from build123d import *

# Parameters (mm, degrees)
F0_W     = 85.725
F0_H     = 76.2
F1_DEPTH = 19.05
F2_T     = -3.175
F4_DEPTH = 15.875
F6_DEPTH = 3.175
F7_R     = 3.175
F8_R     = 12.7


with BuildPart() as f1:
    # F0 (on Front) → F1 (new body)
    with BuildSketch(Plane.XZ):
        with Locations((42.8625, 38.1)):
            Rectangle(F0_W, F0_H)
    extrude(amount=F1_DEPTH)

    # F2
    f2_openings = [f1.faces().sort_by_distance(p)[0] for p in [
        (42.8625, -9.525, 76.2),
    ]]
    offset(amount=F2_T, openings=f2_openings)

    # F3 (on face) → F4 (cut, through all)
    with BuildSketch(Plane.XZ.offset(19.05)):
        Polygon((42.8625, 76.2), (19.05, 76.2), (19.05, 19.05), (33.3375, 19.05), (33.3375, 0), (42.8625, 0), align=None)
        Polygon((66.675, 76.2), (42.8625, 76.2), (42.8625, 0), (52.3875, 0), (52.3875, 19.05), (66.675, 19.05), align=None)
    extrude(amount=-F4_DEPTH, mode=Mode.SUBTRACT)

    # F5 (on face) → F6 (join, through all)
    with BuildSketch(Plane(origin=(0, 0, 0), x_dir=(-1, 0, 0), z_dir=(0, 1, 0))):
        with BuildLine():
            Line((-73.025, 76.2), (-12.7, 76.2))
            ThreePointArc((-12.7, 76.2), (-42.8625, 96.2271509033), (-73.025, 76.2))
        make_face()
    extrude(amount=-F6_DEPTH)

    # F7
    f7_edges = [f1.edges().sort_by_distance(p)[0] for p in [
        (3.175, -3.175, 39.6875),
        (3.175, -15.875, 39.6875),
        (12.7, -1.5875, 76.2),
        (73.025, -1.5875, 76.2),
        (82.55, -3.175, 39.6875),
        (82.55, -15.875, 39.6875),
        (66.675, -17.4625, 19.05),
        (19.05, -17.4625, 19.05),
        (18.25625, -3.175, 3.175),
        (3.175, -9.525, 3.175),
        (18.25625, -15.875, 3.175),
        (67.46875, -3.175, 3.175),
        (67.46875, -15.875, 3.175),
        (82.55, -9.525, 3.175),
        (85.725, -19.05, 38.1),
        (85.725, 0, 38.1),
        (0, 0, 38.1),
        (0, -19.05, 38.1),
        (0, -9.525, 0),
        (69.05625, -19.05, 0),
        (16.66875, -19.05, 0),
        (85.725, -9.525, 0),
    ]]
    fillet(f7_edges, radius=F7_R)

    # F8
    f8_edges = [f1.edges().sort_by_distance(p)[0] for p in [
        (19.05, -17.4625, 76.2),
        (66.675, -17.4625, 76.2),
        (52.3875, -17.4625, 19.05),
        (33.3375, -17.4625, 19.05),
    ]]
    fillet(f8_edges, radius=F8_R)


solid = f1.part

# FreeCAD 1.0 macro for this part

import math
import FreeCAD as App
import Part
import Sketcher
from FreeCAD import Vector
Q = App.Units.Quantity


def edges_at(feature, points):
    """Names of the edges that pass closest to the given points."""
    edges = feature.Shape.Edges
    near = lambda p: min(range(len(edges)), key=lambda i: edges[i].distToShape(Part.Vertex(*p))[0])
    return sorted({f"Edge{near(p) + 1}" for p in points})


def faces_at(feature, points):
    """Names of the faces that lie closest to the given points."""
    faces = feature.Shape.Faces
    near = lambda p: min(range(len(faces)), key=lambda i: faces[i].distToShape(Part.Vertex(*p))[0])
    return sorted({f"Face{near(p) + 1}" for p in points})


def add_polygon(sketch, points):
    """Adds a closed chain of lines whose ends are joined by coincident constraints."""
    first, n = sketch.GeometryCount, len(points)
    for a, b in zip(points, points[1:] + points[:1]):
        sketch.addGeometry(Part.LineSegment(App.Vector(*a, 0), App.Vector(*b, 0)), False)
    for i in range(n):
        sketch.addConstraint(Sketcher.Constraint("Coincident", first + i, 2, first + (i + 1) % n, 1))

doc = App.newDocument("Part")
params = doc.addObject("Spreadsheet::Sheet", "Params")
for row, (alias, value) in enumerate([
    ("sketch1_height", "3 in"),
    ("sketch1_width", "3.375 in"),
    ("pad1_length", "0.75 in"),
    ("thickness_wall", "0.125 in"),
    ("sketch2_width", "0.75 in"),
    ("sketch2_width2", "0.5625 in"),
    ("pocket1_length", "0.625 in"),
    ("sketch3_width", "2.375 in"),
    ("pad2_length", "0.125 in"),
    ("fillet_radius", "0.125 in"),
    ("fillet2_radius", "0.5 in"),
], start=1):
    params.set(f"A{row}", alias)
    params.set(f"B{row}", "=" + value)
    params.setAlias(f"B{row}", alias)

body = doc.addObject("PartDesign::Body", "Body")

# Sketch on XZ plane
sketch1 = body.newObject("Sketcher::SketchObject", "Sketch")
sketch1.AttachmentSupport = (doc.getObject("XZ_Plane"), [""])
sketch1.MapMode = "FlatFace"
add_polygon(sketch1, [(0, 76), (0, 0), (86, 0), (86, 76)])  # lines 0-3
sketch1.addConstraint(Sketcher.Constraint("Vertical", 0))
sketch1.addConstraint(Sketcher.Constraint("Horizontal", 1))
sketch1.addConstraint(Sketcher.Constraint("Vertical", 2))
sketch1.addConstraint(Sketcher.Constraint("Horizontal", 3))
sketch1.addConstraint(Sketcher.Constraint("Coincident", 0, 2, -1, 1))
sketch1.addConstraint(Sketcher.Constraint("DistanceY", 0, 2, 0, 1, Q("3 in")))
sketch1.addConstraint(Sketcher.Constraint("DistanceX", 1, 1, 1, 2, Q("3.375 in")))
sketch1.setExpression("Constraints[9]", "Params.sketch1_height")
sketch1.setExpression("Constraints[10]", "Params.sketch1_width")
pad1 = body.newObject("PartDesign::Pad", "Pad")
pad1.Profile = sketch1
pad1.setExpression("Length", "Params.pad1_length")
doc.recompute()

thickness = body.newObject("PartDesign::Thickness", "Thickness")
thickness.Base = (pad1, faces_at(pad1, [(42.862, -9.525, 76.2)]))
thickness.setExpression("Value", "Params.thickness_wall")
thickness.Reversed = True
thickness.Join = "Arc"

# Sketch on XZ plane
sketch2 = body.newObject("Sketcher::SketchObject", "Sketch001")
sketch2.AttachmentSupport = (doc.getObject("XZ_Plane"), [""])
sketch2.MapMode = "FlatFace"
sketch2.AttachmentOffset = App.Placement(Vector(0, 0, 0.75 * 25.4), App.Rotation())
add_polygon(sketch2, [(19, 76), (19, 19), (33, 19), (33, 0), (52, 0), (52, 19), (67, 19), (67, 76)])  # lines 0-7
sketch2.addConstraint(Sketcher.Constraint("Vertical", 0))
sketch2.addConstraint(Sketcher.Constraint("Horizontal", 1))
sketch2.addConstraint(Sketcher.Constraint("Vertical", 2))
sketch2.addConstraint(Sketcher.Constraint("Horizontal", 3))
sketch2.addConstraint(Sketcher.Constraint("Vertical", 4))
sketch2.addConstraint(Sketcher.Constraint("Horizontal", 5))
sketch2.addConstraint(Sketcher.Constraint("Vertical", 6))
sketch2.addConstraint(Sketcher.Constraint("Horizontal", 7))
sketch2.addConstraint(Sketcher.Constraint("PointOnObject", 2, 2, -1))
sketch2.addConstraint(Sketcher.Constraint("Horizontal", 1, 2, 4, 2))
sketch2.addConstraint(Sketcher.Constraint("Equal", 1, 5))
sketch2.addConstraint(Sketcher.Constraint("Equal", 3, 2))
sketch2.addConstraint(Sketcher.Constraint("DistanceY", -1, 1, 6, 2, Q("3 in")))
sketch2.addConstraint(Sketcher.Constraint("DistanceX", 3, 1, 3, 2, Q("0.75 in")))
sketch2.addConstraint(Sketcher.Constraint("DistanceX", 1, 1, 1, 2, Q("0.5625 in")))
sketch2.addConstraint(Sketcher.Constraint("DistanceX", -1, 1, 0, 2, Q("0.75 in")))
sketch2.setExpression("Constraints[21]", "Params.sketch2_width")
sketch2.setExpression("Constraints[22]", "Params.sketch2_width2")
pocket1 = body.newObject("PartDesign::Pocket", "Pocket")
pocket1.Profile = sketch2
pocket1.setExpression("Length", "Params.pocket1_length")

# Sketch on XZ plane
sketch3 = body.newObject("Sketcher::SketchObject", "Sketch002")
sketch3.AttachmentSupport = (doc.getObject("XZ_Plane"), [""])
sketch3.MapMode = "FlatFace"
sketch3.addGeometry(Part.LineSegment(Vector(73, 76, 0), Vector(13, 76, 0)), False)
sketch3.addGeometry(Part.ArcOfCircle(Part.Circle(Vector(43, 64, 0), Vector(0, 0, 1), 33), math.radians(23), math.radians(157)), False)
sketch3.addConstraint(Sketcher.Constraint("Coincident", 0, 1, 1, 1))
sketch3.addConstraint(Sketcher.Constraint("Coincident", 1, 2, 0, 2))
sketch3.addConstraint(Sketcher.Constraint("Horizontal", 0))
sketch3.addConstraint(Sketcher.Constraint("DistanceY", -1, 1, 0, 1, Q("3 in")))
sketch3.addConstraint(Sketcher.Constraint("DistanceY", -1, 1, 1, 3, Q("2.5 in")))
sketch3.addConstraint(Sketcher.Constraint("DistanceX", -1, 1, 1, 2, Q("0.5 in")))
sketch3.addConstraint(Sketcher.Constraint("DistanceX", 0, 2, 0, 1, Q("2.375 in")))
sketch3.setExpression("Constraints[6]", "Params.sketch3_width")
pad2 = body.newObject("PartDesign::Pad", "Pad001")
pad2.Profile = sketch3
pad2.setExpression("Length", "Params.pad2_length")
doc.recompute()

fillet = body.newObject("PartDesign::Fillet", "Fillet")
fillet.Base = (pad2, edges_at(pad2, [
    (3.175, -3.175, 39.688),
    (3.175, -15.875, 39.688),
    (12.7, -1.587, 76.2),
    (73.025, -1.587, 76.2),
    (82.55, -3.175, 39.688),
    (82.55, -15.875, 39.688),
    (66.675, -17.462, 19.05),
    (19.05, -17.462, 19.05),
    (18.256, -3.175, 3.175),
    (3.175, -9.525, 3.175),
    (18.256, -15.875, 3.175),
    (67.469, -3.175, 3.175),
    (67.469, -15.875, 3.175),
    (82.55, -9.525, 3.175),
    (85.725, -19.05, 38.1),
    (85.725, 0, 38.1),
    (0, 0, 38.1),
    (0, -19.05, 38.1),
    (0, -9.525, 0),
    (69.056, -19.05, 0),
    (16.669, -19.05, 0),
    (85.725, -9.525, 0),
]))
fillet.setExpression("Radius", "Params.fillet_radius")
doc.recompute()

fillet2 = body.newObject("PartDesign::Fillet", "Fillet001")
fillet2.Base = (fillet, edges_at(fillet, [
    (19.05, -17.462, 76.2),
    (66.675, -17.462, 76.2),
    (52.388, -17.462, 19.05),
    (33.337, -17.462, 19.05),
]))
fillet2.setExpression("Radius", "Params.fillet2_radius")

doc.recompute()
